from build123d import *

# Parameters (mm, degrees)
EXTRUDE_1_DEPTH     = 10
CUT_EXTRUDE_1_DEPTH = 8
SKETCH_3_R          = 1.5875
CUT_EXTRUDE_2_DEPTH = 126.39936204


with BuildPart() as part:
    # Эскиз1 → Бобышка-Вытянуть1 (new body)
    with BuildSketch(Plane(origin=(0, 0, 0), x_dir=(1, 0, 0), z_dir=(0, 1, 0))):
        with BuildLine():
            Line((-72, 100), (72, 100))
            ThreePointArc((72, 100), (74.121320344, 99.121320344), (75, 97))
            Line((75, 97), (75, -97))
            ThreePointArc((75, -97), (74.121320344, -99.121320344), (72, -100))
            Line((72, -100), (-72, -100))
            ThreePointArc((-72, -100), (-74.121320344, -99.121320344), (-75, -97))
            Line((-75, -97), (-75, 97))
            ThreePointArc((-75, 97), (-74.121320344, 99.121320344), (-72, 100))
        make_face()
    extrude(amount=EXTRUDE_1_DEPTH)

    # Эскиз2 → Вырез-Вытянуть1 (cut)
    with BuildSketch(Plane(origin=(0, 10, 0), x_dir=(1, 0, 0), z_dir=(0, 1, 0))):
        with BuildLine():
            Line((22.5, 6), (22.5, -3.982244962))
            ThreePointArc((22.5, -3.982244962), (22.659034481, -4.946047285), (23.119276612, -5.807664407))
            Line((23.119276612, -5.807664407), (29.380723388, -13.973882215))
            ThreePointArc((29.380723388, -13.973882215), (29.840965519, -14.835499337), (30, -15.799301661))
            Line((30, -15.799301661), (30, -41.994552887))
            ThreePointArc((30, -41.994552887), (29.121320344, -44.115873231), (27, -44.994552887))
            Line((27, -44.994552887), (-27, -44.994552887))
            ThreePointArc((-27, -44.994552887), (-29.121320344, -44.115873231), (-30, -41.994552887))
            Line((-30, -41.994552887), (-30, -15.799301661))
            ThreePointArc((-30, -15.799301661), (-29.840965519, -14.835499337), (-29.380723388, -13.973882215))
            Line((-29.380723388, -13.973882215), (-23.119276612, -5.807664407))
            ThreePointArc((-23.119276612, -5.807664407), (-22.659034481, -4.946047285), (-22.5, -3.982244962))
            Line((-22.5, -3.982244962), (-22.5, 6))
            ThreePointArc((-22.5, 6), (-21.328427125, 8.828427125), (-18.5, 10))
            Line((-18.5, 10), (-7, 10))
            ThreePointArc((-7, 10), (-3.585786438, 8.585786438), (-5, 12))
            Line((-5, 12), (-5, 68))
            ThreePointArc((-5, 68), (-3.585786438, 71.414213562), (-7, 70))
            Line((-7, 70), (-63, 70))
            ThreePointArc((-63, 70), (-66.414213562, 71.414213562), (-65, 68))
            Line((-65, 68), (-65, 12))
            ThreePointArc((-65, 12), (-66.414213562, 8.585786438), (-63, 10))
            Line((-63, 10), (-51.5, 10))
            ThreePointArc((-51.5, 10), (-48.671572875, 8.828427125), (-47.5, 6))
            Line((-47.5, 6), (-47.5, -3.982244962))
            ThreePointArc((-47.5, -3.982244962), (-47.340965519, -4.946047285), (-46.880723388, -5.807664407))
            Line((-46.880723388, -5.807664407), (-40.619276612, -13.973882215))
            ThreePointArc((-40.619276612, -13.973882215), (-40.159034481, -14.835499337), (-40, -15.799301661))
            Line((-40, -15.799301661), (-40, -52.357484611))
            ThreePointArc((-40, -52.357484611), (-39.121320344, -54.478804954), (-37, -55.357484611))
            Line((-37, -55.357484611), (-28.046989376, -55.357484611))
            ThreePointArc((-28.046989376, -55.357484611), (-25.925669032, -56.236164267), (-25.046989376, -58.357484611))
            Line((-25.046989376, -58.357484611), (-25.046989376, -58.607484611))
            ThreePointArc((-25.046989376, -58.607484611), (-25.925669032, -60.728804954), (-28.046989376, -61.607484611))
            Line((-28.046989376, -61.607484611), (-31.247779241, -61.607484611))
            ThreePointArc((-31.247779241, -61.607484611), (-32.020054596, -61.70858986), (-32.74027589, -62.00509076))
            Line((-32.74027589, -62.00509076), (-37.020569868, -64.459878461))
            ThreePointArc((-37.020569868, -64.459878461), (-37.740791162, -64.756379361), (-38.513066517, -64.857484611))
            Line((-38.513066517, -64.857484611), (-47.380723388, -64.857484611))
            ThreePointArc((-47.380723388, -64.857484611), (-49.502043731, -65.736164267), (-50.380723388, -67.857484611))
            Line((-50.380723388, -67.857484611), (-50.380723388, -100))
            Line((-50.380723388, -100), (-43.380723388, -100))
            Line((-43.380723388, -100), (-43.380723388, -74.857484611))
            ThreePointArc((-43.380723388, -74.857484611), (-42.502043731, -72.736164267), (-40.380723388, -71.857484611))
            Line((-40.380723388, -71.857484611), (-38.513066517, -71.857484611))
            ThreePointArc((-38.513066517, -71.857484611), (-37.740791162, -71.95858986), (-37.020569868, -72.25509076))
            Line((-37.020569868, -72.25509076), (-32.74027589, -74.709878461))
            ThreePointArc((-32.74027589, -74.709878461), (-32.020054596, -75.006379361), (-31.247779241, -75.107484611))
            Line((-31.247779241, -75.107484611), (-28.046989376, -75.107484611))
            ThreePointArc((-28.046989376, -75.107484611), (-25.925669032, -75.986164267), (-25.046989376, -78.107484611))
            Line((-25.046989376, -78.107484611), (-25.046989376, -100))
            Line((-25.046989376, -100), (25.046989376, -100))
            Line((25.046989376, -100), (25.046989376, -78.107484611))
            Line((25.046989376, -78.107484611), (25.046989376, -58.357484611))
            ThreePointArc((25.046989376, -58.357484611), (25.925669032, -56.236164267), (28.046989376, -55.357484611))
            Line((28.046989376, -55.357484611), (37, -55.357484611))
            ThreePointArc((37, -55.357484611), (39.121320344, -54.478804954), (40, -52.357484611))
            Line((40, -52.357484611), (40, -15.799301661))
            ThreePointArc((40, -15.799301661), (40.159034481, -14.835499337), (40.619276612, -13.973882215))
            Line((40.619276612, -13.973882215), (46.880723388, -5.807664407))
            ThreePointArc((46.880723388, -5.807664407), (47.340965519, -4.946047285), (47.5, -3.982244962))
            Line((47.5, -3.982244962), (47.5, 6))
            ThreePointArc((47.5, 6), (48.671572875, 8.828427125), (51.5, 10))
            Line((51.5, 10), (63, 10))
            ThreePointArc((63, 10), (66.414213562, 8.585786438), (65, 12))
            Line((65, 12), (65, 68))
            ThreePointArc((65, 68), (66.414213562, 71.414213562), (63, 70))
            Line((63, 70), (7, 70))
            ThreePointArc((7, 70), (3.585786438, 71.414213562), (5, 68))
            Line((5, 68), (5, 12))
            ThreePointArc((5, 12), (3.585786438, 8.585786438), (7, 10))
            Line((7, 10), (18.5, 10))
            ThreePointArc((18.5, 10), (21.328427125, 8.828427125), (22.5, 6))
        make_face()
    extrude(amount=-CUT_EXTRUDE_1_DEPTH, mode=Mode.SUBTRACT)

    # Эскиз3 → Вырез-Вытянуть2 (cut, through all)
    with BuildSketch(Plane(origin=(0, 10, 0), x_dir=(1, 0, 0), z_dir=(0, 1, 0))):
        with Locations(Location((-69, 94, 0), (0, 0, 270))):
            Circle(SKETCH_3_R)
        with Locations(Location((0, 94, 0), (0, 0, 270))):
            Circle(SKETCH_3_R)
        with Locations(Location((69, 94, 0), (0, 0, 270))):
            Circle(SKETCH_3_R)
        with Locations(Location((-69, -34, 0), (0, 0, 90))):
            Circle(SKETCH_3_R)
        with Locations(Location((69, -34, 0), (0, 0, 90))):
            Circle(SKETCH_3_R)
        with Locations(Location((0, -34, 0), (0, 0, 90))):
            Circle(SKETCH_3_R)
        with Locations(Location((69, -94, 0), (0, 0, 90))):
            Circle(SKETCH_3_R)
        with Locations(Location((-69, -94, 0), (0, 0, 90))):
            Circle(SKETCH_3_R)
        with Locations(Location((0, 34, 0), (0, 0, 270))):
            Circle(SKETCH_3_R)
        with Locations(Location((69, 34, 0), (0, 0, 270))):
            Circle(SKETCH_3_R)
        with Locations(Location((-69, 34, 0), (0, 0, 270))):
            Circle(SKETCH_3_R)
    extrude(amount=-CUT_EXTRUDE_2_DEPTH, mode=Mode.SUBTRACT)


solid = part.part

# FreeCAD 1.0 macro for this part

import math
import FreeCAD as App
import Part
import Sketcher
from FreeCAD import Vector
Q = App.Units.Quantity

doc = App.newDocument("Part")
body = doc.addObject("PartDesign::Body", "Body")

# Sketch on XZ plane
sketch1 = body.newObject("Sketcher::SketchObject", "Sketch")
sketch1.AttachmentSupport = (doc.getObject("XZ_Plane"), [""])
sketch1.MapMode = "FlatFace"
sketch1.addGeometry(Part.LineSegment(Vector(72, -100, 0), Vector(-72, -100, 0)), False)
sketch1.addGeometry(Part.ArcOfCircle(Part.Circle(Vector(-72, -97, 0), Vector(0, 0, 1), 3), math.radians(180), math.radians(270)), False)
sketch1.addGeometry(Part.LineSegment(Vector(-75, -97, 0), Vector(-75, 97, 0)), False)
sketch1.addGeometry(Part.ArcOfCircle(Part.Circle(Vector(-72, 97, 0), Vector(0, 0, 1), 3), math.radians(90), math.radians(180)), False)
sketch1.addGeometry(Part.LineSegment(Vector(-72, 100, 0), Vector(72, 100, 0)), False)
sketch1.addGeometry(Part.ArcOfCircle(Part.Circle(Vector(72, 97, 0), Vector(0, 0, 1), 3), math.radians(0), math.radians(90)), False)
sketch1.addGeometry(Part.LineSegment(Vector(75, 97, 0), Vector(75, -97, 0)), False)
sketch1.addGeometry(Part.ArcOfCircle(Part.Circle(Vector(72, -97, 0), Vector(0, 0, 1), 3), math.radians(-90), math.radians(0)), False)
sketch1.addConstraint(Sketcher.Constraint("Tangent", 0, 2, 1, 2))
sketch1.addConstraint(Sketcher.Constraint("Tangent", 1, 1, 2, 1))
sketch1.addConstraint(Sketcher.Constraint("Tangent", 2, 2, 3, 2))
sketch1.addConstraint(Sketcher.Constraint("Tangent", 3, 1, 4, 1))
sketch1.addConstraint(Sketcher.Constraint("Tangent", 4, 2, 5, 2))
sketch1.addConstraint(Sketcher.Constraint("Tangent", 5, 1, 6, 1))
sketch1.addConstraint(Sketcher.Constraint("Tangent", 6, 2, 7, 2))
sketch1.addConstraint(Sketcher.Constraint("Tangent", 7, 1, 0, 1))
sketch1.addConstraint(Sketcher.Constraint("Horizontal", 0))
sketch1.addConstraint(Sketcher.Constraint("Vertical", 2))
sketch1.addConstraint(Sketcher.Constraint("Horizontal", 4))
sketch1.addConstraint(Sketcher.Constraint("Vertical", 6))
sketch1.addConstraint(Sketcher.Constraint("Equal", 1, 3))
sketch1.addConstraint(Sketcher.Constraint("Equal", 3, 5))
sketch1.addConstraint(Sketcher.Constraint("Equal", 5, 7))
sketch1.addConstraint(Sketcher.Constraint("Symmetric", 1, 3, 5, 3, -1, 1))
sketch1.addConstraint(Sketcher.Constraint("Radius", 1, Q("3 mm")))
sketch1.addConstraint(Sketcher.Constraint("DistanceX", 0, 2, 0, 1, Q("144 mm")))
sketch1.addConstraint(Sketcher.Constraint("DistanceY", 2, 1, 2, 2, Q("194 mm")))
pad1 = body.newObject("PartDesign::Pad", "Pad")
pad1.Profile = sketch1
pad1.Length = 10
pad1.Reversed = True

# Sketch on XZ plane
sketch2 = body.newObject("Sketcher::SketchObject", "Sketch001")
sketch2.AttachmentSupport = (doc.getObject("XZ_Plane"), [""])
sketch2.MapMode = "FlatFace"
sketch2.AttachmentOffset = App.Placement(Vector(0, 0, -10), App.Rotation())
sketch2.addGeometry(Part.LineSegment(Vector(22.5, -6, 0), Vector(22.5, 3.98, 0)), False)
sketch2.addGeometry(Part.ArcOfCircle(Part.Circle(Vector(25.5, 3.98, 0), Vector(0, 0, 1), 3), math.radians(143), math.radians(180)), False)
sketch2.addGeometry(Part.LineSegment(Vector(23.12, 5.81, 0), Vector(29.38, 13.97, 0)), False)
sketch2.addGeometry(Part.ArcOfCircle(Part.Circle(Vector(27, 15.8, 0), Vector(0, 0, 1), 3), math.radians(-37), math.radians(0)), False)
sketch2.addGeometry(Part.LineSegment(Vector(30, 15.8, 0), Vector(30, 41.99, 0)), False)
sketch2.addGeometry(Part.ArcOfCircle(Part.Circle(Vector(27, 41.99, 0), Vector(0, 0, 1), 3), math.radians(0), math.radians(90)), False)
sketch2.addGeometry(Part.LineSegment(Vector(27, 44.99, 0), Vector(-27, 44.99, 0)), False)
sketch2.addGeometry(Part.ArcOfCircle(Part.Circle(Vector(-27, 41.99, 0), Vector(0, 0, 1), 3), math.radians(90), math.radians(180)), False)
sketch2.addGeometry(Part.LineSegment(Vector(-30, 41.99, 0), Vector(-30, 15.8, 0)), False)
sketch2.addGeometry(Part.ArcOfCircle(Part.Circle(Vector(-27, 15.8, 0), Vector(0, 0, 1), 3), math.radians(-180), math.radians(-143)), False)
sketch2.addGeometry(Part.LineSegment(Vector(-29.38, 13.97, 0), Vector(-23.12, 5.81, 0)), False)
sketch2.addGeometry(Part.ArcOfCircle(Part.Circle(Vector(-25.5, 3.98, 0), Vector(0, 0, 1), 3), math.radians(0), math.radians(37)), False)
sketch2.addGeometry(Part.LineSegment(Vector(-22.5, 3.98, 0), Vector(-22.5, -6, 0)), False)
sketch2.addGeometry(Part.ArcOfCircle(Part.Circle(Vector(-18.5, -6, 0), Vector(0, 0, 1), 4), math.radians(180), math.radians(270)), False)
sketch2.addGeometry(Part.LineSegment(Vector(-18.5, -10, 0), Vector(-7, -10, 0)), False)
sketch2.addGeometry(Part.ArcOfCircle(Part.Circle(Vector(-5, -10, 0), Vector(0, 0, 1), 2), math.radians(-90), math.radians(180)), False)
sketch2.addGeometry(Part.LineSegment(Vector(-5, -12, 0), Vector(-5, -68, 0)), False)
sketch2.addGeometry(Part.ArcOfCircle(Part.Circle(Vector(-5, -70, 0), Vector(0, 0, 1), 2), math.radians(180), math.radians(450)), False)
sketch2.addGeometry(Part.LineSegment(Vector(-7, -70, 0), Vector(-63, -70, 0)), False)
sketch2.addGeometry(Part.ArcOfCircle(Part.Circle(Vector(-65, -70, 0), Vector(0, 0, 1), 2), math.radians(90), math.radians(360)), False)
sketch2.addGeometry(Part.LineSegment(Vector(-65, -68, 0), Vector(-65, -12, 0)), False)
sketch2.addGeometry(Part.ArcOfCircle(Part.Circle(Vector(-65, -10, 0), Vector(0, 0, 1), 2), math.radians(0), math.radians(270)), False)
sketch2.addGeometry(Part.LineSegment(Vector(-63, -10, 0), Vector(-51.5, -10, 0)), False)
sketch2.addGeometry(Part.ArcOfCircle(Part.Circle(Vector(-51.5, -6, 0), Vector(0, 0, 1), 4), math.radians(-90), math.radians(0)), False)
sketch2.addGeometry(Part.LineSegment(Vector(-47.5, -6, 0), Vector(-47.5, 3.98, 0)), False)
sketch2.addGeometry(Part.ArcOfCircle(Part.Circle(Vector(-44.5, 3.98, 0), Vector(0, 0, 1), 3), math.radians(143), math.radians(180)), False)
sketch2.addGeometry(Part.LineSegment(Vector(-46.88, 5.81, 0), Vector(-40.62, 13.97, 0)), False)
sketch2.addGeometry(Part.ArcOfCircle(Part.Circle(Vector(-43, 15.8, 0), Vector(0, 0, 1), 3), math.radians(-37), math.radians(0)), False)
sketch2.addGeometry(Part.LineSegment(Vector(-40, 15.8, 0), Vector(-40, 52.36, 0)), False)
sketch2.addGeometry(Part.ArcOfCircle(Part.Circle(Vector(-37, 52.36, 0), Vector(0, 0, 1), 3), math.radians(90), math.radians(180)), False)
sketch2.addGeometry(Part.LineSegment(Vector(-37, 55.36, 0), Vector(-28.05, 55.36, 0)), False)
sketch2.addGeometry(Part.ArcOfCircle(Part.Circle(Vector(-28.05, 58.36, 0), Vector(0, 0, 1), 3), math.radians(-90), math.radians(0)), False)
sketch2.addGeometry(Part.LineSegment(Vector(-25.05, 58.36, 0), Vector(-25.05, 58.61, 0)), False)
sketch2.addGeometry(Part.ArcOfCircle(Part.Circle(Vector(-28.05, 58.61, 0), Vector(0, 0, 1), 3), math.radians(0), math.radians(90)), False)
sketch2.addGeometry(Part.LineSegment(Vector(-28.05, 61.61, 0), Vector(-31.25, 61.61, 0)), False)
sketch2.addGeometry(Part.ArcOfCircle(Part.Circle(Vector(-31.25, 64.61, 0), Vector(0, 0, 1), 3), math.radians(-120), math.radians(-90)), False)
sketch2.addGeometry(Part.LineSegment(Vector(-32.74, 62.01, 0), Vector(-37.02, 64.46, 0)), False)
sketch2.addGeometry(Part.ArcOfCircle(Part.Circle(Vector(-38.51, 61.86, 0), Vector(0, 0, 1), 3), math.radians(60), math.radians(90)), False)
sketch2.addGeometry(Part.LineSegment(Vector(-38.51, 64.86, 0), Vector(-47.38, 64.86, 0)), False)
sketch2.addGeometry(Part.ArcOfCircle(Part.Circle(Vector(-47.38, 67.86, 0), Vector(0, 0, 1), 3), math.radians(180), math.radians(270)), False)
sketch2.addGeometry(Part.LineSegment(Vector(-50.38, 67.86, 0), Vector(-50.38, 100, 0)), False)
sketch2.addGeometry(Part.LineSegment(Vector(-50.38, 100, 0), Vector(-43.38, 100, 0)), False)
sketch2.addGeometry(Part.LineSegment(Vector(-43.38, 100, 0), Vector(-43.38, 74.86, 0)), False)
sketch2.addGeometry(Part.ArcOfCircle(Part.Circle(Vector(-40.38, 74.86, 0), Vector(0, 0, 1), 3), math.radians(180), math.radians(270)), False)
sketch2.addGeometry(Part.LineSegment(Vector(-40.38, 71.86, 0), Vector(-38.51, 71.86, 0)), False)
sketch2.addGeometry(Part.ArcOfCircle(Part.Circle(Vector(-38.51, 74.86, 0), Vector(0, 0, 1), 3), math.radians(-90), math.radians(-60)), False)
sketch2.addGeometry(Part.LineSegment(Vector(-37.02, 72.26, 0), Vector(-32.74, 74.71, 0)), False)
sketch2.addGeometry(Part.ArcOfCircle(Part.Circle(Vector(-31.25, 72.11, 0), Vector(0, 0, 1), 3), math.radians(90), math.radians(120)), False)
sketch2.addGeometry(Part.LineSegment(Vector(-31.25, 75.11, 0), Vector(-28.05, 75.11, 0)), False)
sketch2.addGeometry(Part.ArcOfCircle(Part.Circle(Vector(-28.05, 78.11, 0), Vector(0, 0, 1), 3), math.radians(-90), math.radians(0)), False)
sketch2.addGeometry(Part.LineSegment(Vector(-25.05, 78.11, 0), Vector(-25.05, 100, 0)), False)
sketch2.addGeometry(Part.LineSegment(Vector(-25.05, 100, 0), Vector(25.05, 100, 0)), False)
sketch2.addGeometry(Part.LineSegment(Vector(25.05, 100, 0), Vector(25.05, 58.36, 0)), False)
sketch2.addGeometry(Part.ArcOfCircle(Part.Circle(Vector(28.05, 58.36, 0), Vector(0, 0, 1), 3), math.radians(180), math.radians(270)), False)
sketch2.addGeometry(Part.LineSegment(Vector(28.05, 55.36, 0), Vector(37, 55.36, 0)), False)
sketch2.addGeometry(Part.ArcOfCircle(Part.Circle(Vector(37, 52.36, 0), Vector(0, 0, 1), 3), math.radians(0), math.radians(90)), False)
sketch2.addGeometry(Part.LineSegment(Vector(40, 52.36, 0), Vector(40, 15.8, 0)), False)
sketch2.addGeometry(Part.ArcOfCircle(Part.Circle(Vector(43, 15.8, 0), Vector(0, 0, 1), 3), math.radians(-180), math.radians(-143)), False)
sketch2.addGeometry(Part.LineSegment(Vector(40.62, 13.97, 0), Vector(46.88, 5.81, 0)), False)
sketch2.addGeometry(Part.ArcOfCircle(Part.Circle(Vector(44.5, 3.98, 0), Vector(0, 0, 1), 3), math.radians(0), math.radians(37)), False)
sketch2.addGeometry(Part.LineSegment(Vector(47.5, 3.98, 0), Vector(47.5, -6, 0)), False)
sketch2.addGeometry(Part.ArcOfCircle(Part.Circle(Vector(51.5, -6, 0), Vector(0, 0, 1), 4), math.radians(180), math.radians(270)), False)
sketch2.addGeometry(Part.LineSegment(Vector(51.5, -10, 0), Vector(63, -10, 0)), False)
sketch2.addGeometry(Part.ArcOfCircle(Part.Circle(Vector(65, -10, 0), Vector(0, 0, 1), 2), math.radians(-90), math.radians(180)), False)
sketch2.addGeometry(Part.LineSegment(Vector(65, -12, 0), Vector(65, -68, 0)), False)
sketch2.addGeometry(Part.ArcOfCircle(Part.Circle(Vector(65, -70, 0), Vector(0, 0, 1), 2), math.radians(180), math.radians(450)), False)
sketch2.addGeometry(Part.LineSegment(Vector(63, -70, 0), Vector(7, -70, 0)), False)
sketch2.addGeometry(Part.ArcOfCircle(Part.Circle(Vector(5, -70, 0), Vector(0, 0, 1), 2), math.radians(90), math.radians(360)), False)
sketch2.addGeometry(Part.LineSegment(Vector(5, -68, 0), Vector(5, -12, 0)), False)
sketch2.addGeometry(Part.ArcOfCircle(Part.Circle(Vector(5, -10, 0), Vector(0, 0, 1), 2), math.radians(0), math.radians(270)), False)
sketch2.addGeometry(Part.LineSegment(Vector(7, -10, 0), Vector(18.5, -10, 0)), False)
sketch2.addGeometry(Part.ArcOfCircle(Part.Circle(Vector(18.5, -6, 0), Vector(0, 0, 1), 4), math.radians(-90), math.radians(0)), False)
sketch2.addConstraint(Sketcher.Constraint("Tangent", 0, 2, 1, 2))
sketch2.addConstraint(Sketcher.Constraint("Tangent", 1, 1, 2, 1))
sketch2.addConstraint(Sketcher.Constraint("Tangent", 2, 2, 3, 1))
sketch2.addConstraint(Sketcher.Constraint("Tangent", 3, 2, 4, 1))
sketch2.addConstraint(Sketcher.Constraint("Tangent", 4, 2, 5, 1))
sketch2.addConstraint(Sketcher.Constraint("Tangent", 5, 2, 6, 1))
sketch2.addConstraint(Sketcher.Constraint("Tangent", 6, 2, 7, 1))
sketch2.addConstraint(Sketcher.Constraint("Tangent", 7, 2, 8, 1))
sketch2.addConstraint(Sketcher.Constraint("Tangent", 8, 2, 9, 1))
sketch2.addConstraint(Sketcher.Constraint("Tangent", 9, 2, 10, 1))
sketch2.addConstraint(Sketcher.Constraint("Tangent", 10, 2, 11, 2))
sketch2.addConstraint(Sketcher.Constraint("Tangent", 11, 1, 12, 1))
sketch2.addConstraint(Sketcher.Constraint("Tangent", 12, 2, 13, 1))
sketch2.addConstraint(Sketcher.Constraint("Tangent", 13, 2, 14, 1))
sketch2.addConstraint(Sketcher.Constraint("Coincident", 14, 2, 15, 2))
sketch2.addConstraint(Sketcher.Constraint("Coincident", 15, 1, 16, 1))
sketch2.addConstraint(Sketcher.Constraint("Coincident", 16, 2, 17, 2))
sketch2.addConstraint(Sketcher.Constraint("Coincident", 17, 1, 18, 1))
sketch2.addConstraint(Sketcher.Constraint("Coincident", 18, 2, 19, 2))
sketch2.addConstraint(Sketcher.Constraint("Coincident", 19, 1, 20, 1))
sketch2.addConstraint(Sketcher.Constraint("Coincident", 20, 2, 21, 2))
sketch2.addConstraint(Sketcher.Constraint("Coincident", 21, 1, 22, 1))
sketch2.addConstraint(Sketcher.Constraint("Tangent", 22, 2, 23, 1))
sketch2.addConstraint(Sketcher.Constraint("Tangent", 23, 2, 24, 1))
sketch2.addConstraint(Sketcher.Constraint("Tangent", 24, 2, 25, 2))
sketch2.addConstraint(Sketcher.Constraint("Tangent", 25, 1, 26, 1))
sketch2.addConstraint(Sketcher.Constraint("Tangent", 26, 2, 27, 1))
sketch2.addConstraint(Sketcher.Constraint("Tangent", 27, 2, 28, 1))
sketch2.addConstraint(Sketcher.Constraint("Tangent", 28, 2, 29, 2))
sketch2.addConstraint(Sketcher.Constraint("Tangent", 29, 1, 30, 1))
sketch2.addConstraint(Sketcher.Constraint("Tangent", 30, 2, 31, 1))
sketch2.addConstraint(Sketcher.Constraint("Tangent", 31, 2, 32, 1))
sketch2.addConstraint(Sketcher.Constraint("Tangent", 32, 2, 33, 1))
sketch2.addConstraint(Sketcher.Constraint("Tangent", 33, 2, 34, 1))
sketch2.addConstraint(Sketcher.Constraint("Tangent", 34, 2, 35, 2))
sketch2.addConstraint(Sketcher.Constraint("Tangent", 35, 1, 36, 1))
sketch2.addConstraint(Sketcher.Constraint("Tangent", 36, 2, 37, 1))
sketch2.addConstraint(Sketcher.Constraint("Tangent", 37, 2, 38, 1))
sketch2.addConstraint(Sketcher.Constraint("Tangent", 38, 2, 39, 2))
sketch2.addConstraint(Sketcher.Constraint("Tangent", 39, 1, 40, 1))
sketch2.addConstraint(Sketcher.Constraint("Coincident", 40, 2, 41, 1))
sketch2.addConstraint(Sketcher.Constraint("Coincident", 41, 2, 42, 1))
sketch2.addConstraint(Sketcher.Constraint("Tangent", 42, 2, 43, 1))
sketch2.addConstraint(Sketcher.Constraint("Tangent", 43, 2, 44, 1))
sketch2.addConstraint(Sketcher.Constraint("Tangent", 44, 2, 45, 1))
sketch2.addConstraint(Sketcher.Constraint("Tangent", 45, 2, 46, 1))
sketch2.addConstraint(Sketcher.Constraint("Tangent", 46, 2, 47, 2))
sketch2.addConstraint(Sketcher.Constraint("Tangent", 47, 1, 48, 1))
sketch2.addConstraint(Sketcher.Constraint("Tangent", 48, 2, 49, 1))
sketch2.addConstraint(Sketcher.Constraint("Tangent", 49, 2, 50, 1))
sketch2.addConstraint(Sketcher.Constraint("Coincident", 50, 2, 51, 1))
sketch2.addConstraint(Sketcher.Constraint("Coincident", 51, 2, 52, 1))
sketch2.addConstraint(Sketcher.Constraint("Tangent", 52, 2, 53, 1))
sketch2.addConstraint(Sketcher.Constraint("Tangent", 53, 2, 54, 1))
sketch2.addConstraint(Sketcher.Constraint("Tangent", 54, 2, 55, 2))
sketch2.addConstraint(Sketcher.Constraint("Tangent", 55, 1, 56, 1))
sketch2.addConstraint(Sketcher.Constraint("Tangent", 56, 2, 57, 1))
sketch2.addConstraint(Sketcher.Constraint("Tangent", 57, 2, 58, 1))
sketch2.addConstraint(Sketcher.Constraint("Tangent", 58, 2, 59, 2))
sketch2.addConstraint(Sketcher.Constraint("Tangent", 59, 1, 60, 1))
sketch2.addConstraint(Sketcher.Constraint("Tangent", 60, 2, 61, 1))
sketch2.addConstraint(Sketcher.Constraint("Tangent", 61, 2, 62, 1))
sketch2.addConstraint(Sketcher.Constraint("Coincident", 62, 2, 63, 2))
sketch2.addConstraint(Sketcher.Constraint("Coincident", 63, 1, 64, 1))
sketch2.addConstraint(Sketcher.Constraint("Coincident", 64, 2, 65, 2))
sketch2.addConstraint(Sketcher.Constraint("Coincident", 65, 1, 66, 1))
sketch2.addConstraint(Sketcher.Constraint("Coincident", 66, 2, 67, 2))
sketch2.addConstraint(Sketcher.Constraint("Coincident", 67, 1, 68, 1))
sketch2.addConstraint(Sketcher.Constraint("Coincident", 68, 2, 69, 2))
sketch2.addConstraint(Sketcher.Constraint("Coincident", 69, 1, 70, 1))
sketch2.addConstraint(Sketcher.Constraint("Tangent", 70, 2, 71, 1))
sketch2.addConstraint(Sketcher.Constraint("Tangent", 71, 2, 0, 1))
sketch2.addConstraint(Sketcher.Constraint("Vertical", 0))
sketch2.addConstraint(Sketcher.Constraint("Vertical", 4))
sketch2.addConstraint(Sketcher.Constraint("Horizontal", 6))
sketch2.addConstraint(Sketcher.Constraint("Vertical", 8))
sketch2.addConstraint(Sketcher.Constraint("Vertical", 12))
sketch2.addConstraint(Sketcher.Constraint("Horizontal", 14))
sketch2.addConstraint(Sketcher.Constraint("Vertical", 16))
sketch2.addConstraint(Sketcher.Constraint("Horizontal", 18))
sketch2.addConstraint(Sketcher.Constraint("Vertical", 20))
sketch2.addConstraint(Sketcher.Constraint("Horizontal", 22))
sketch2.addConstraint(Sketcher.Constraint("Vertical", 24))
sketch2.addConstraint(Sketcher.Constraint("Vertical", 28))
sketch2.addConstraint(Sketcher.Constraint("Horizontal", 30))
sketch2.addConstraint(Sketcher.Constraint("Vertical", 32))
sketch2.addConstraint(Sketcher.Constraint("Horizontal", 34))
sketch2.addConstraint(Sketcher.Constraint("Horizontal", 38))
sketch2.addConstraint(Sketcher.Constraint("Vertical", 40))
sketch2.addConstraint(Sketcher.Constraint("Horizontal", 41))
sketch2.addConstraint(Sketcher.Constraint("Vertical", 42))
sketch2.addConstraint(Sketcher.Constraint("Horizontal", 44))
sketch2.addConstraint(Sketcher.Constraint("Horizontal", 48))
sketch2.addConstraint(Sketcher.Constraint("Vertical", 50))
sketch2.addConstraint(Sketcher.Constraint("Horizontal", 51))
sketch2.addConstraint(Sketcher.Constraint("Vertical", 52))
sketch2.addConstraint(Sketcher.Constraint("Horizontal", 54))
sketch2.addConstraint(Sketcher.Constraint("Vertical", 56))
sketch2.addConstraint(Sketcher.Constraint("Vertical", 60))
sketch2.addConstraint(Sketcher.Constraint("Horizontal", 62))
sketch2.addConstraint(Sketcher.Constraint("Vertical", 64))
sketch2.addConstraint(Sketcher.Constraint("Horizontal", 66))
sketch2.addConstraint(Sketcher.Constraint("Vertical", 68))
sketch2.addConstraint(Sketcher.Constraint("Horizontal", 70))
sketch2.addConstraint(Sketcher.Constraint("Equal", 1, 3))
sketch2.addConstraint(Sketcher.Constraint("Equal", 3, 5))
sketch2.addConstraint(Sketcher.Constraint("Equal", 5, 7))
sketch2.addConstraint(Sketcher.Constraint("Equal", 7, 9))
sketch2.addConstraint(Sketcher.Constraint("Equal", 9, 11))
sketch2.addConstraint(Sketcher.Constraint("Equal", 15, 17))
sketch2.addConstraint(Sketcher.Constraint("Equal", 17, 19))
sketch2.addConstraint(Sketcher.Constraint("Equal", 19, 21))
sketch2.addConstraint(Sketcher.Constraint("Equal", 13, 23))
sketch2.addConstraint(Sketcher.Constraint("Equal", 11, 25))
sketch2.addConstraint(Sketcher.Constraint("Equal", 25, 27))
sketch2.addConstraint(Sketcher.Constraint("Equal", 27, 29))
sketch2.addConstraint(Sketcher.Constraint("Equal", 29, 31))
sketch2.addConstraint(Sketcher.Constraint("Equal", 31, 33))
sketch2.addConstraint(Sketcher.Constraint("Equal", 33, 35))
sketch2.addConstraint(Sketcher.Constraint("Equal", 35, 37))
sketch2.addConstraint(Sketcher.Constraint("Equal", 37, 39))
sketch2.addConstraint(Sketcher.Constraint("Equal", 39, 43))
sketch2.addConstraint(Sketcher.Constraint("Equal", 43, 45))
sketch2.addConstraint(Sketcher.Constraint("Equal", 45, 47))
sketch2.addConstraint(Sketcher.Constraint("Equal", 47, 49))
sketch2.addConstraint(Sketcher.Constraint("Equal", 49, 53))
sketch2.addConstraint(Sketcher.Constraint("Equal", 53, 55))
sketch2.addConstraint(Sketcher.Constraint("Equal", 55, 57))
sketch2.addConstraint(Sketcher.Constraint("Equal", 57, 59))
sketch2.addConstraint(Sketcher.Constraint("Equal", 23, 61))
sketch2.addConstraint(Sketcher.Constraint("Equal", 21, 63))
sketch2.addConstraint(Sketcher.Constraint("Equal", 63, 65))
sketch2.addConstraint(Sketcher.Constraint("Equal", 65, 67))
sketch2.addConstraint(Sketcher.Constraint("Equal", 67, 69))
sketch2.addConstraint(Sketcher.Constraint("Equal", 61, 71))
sketch2.addConstraint(Sketcher.Constraint("Symmetric", 3, 3, 9, 3, -2))
sketch2.addConstraint(Sketcher.Constraint("Symmetric", 1, 3, 11, 3, -2))
sketch2.addConstraint(Sketcher.Constraint("Symmetric", 31, 3, 53, 3, -2))
sketch2.addConstraint(Sketcher.Constraint("Symmetric", 27, 3, 57, 3, -2))
sketch2.addConstraint(Sketcher.Constraint("Symmetric", 25, 3, 59, 3, -2))
sketch2.addConstraint(Sketcher.Constraint("Symmetric", 21, 3, 63, 3, -2))
sketch2.addConstraint(Sketcher.Constraint("Symmetric", 19, 3, 65, 3, -2))
sketch2.addConstraint(Sketcher.Constraint("Symmetric", 17, 3, 67, 3, -2))
sketch2.addConstraint(Sketcher.Constraint("Symmetric", 15, 3, 69, 3, -2))
sketch2.addConstraint(Sketcher.Constraint("Parallel", 2, 26))
sketch2.addConstraint(Sketcher.Constraint("Horizontal", 17, 3, 19, 3))
sketch2.addConstraint(Sketcher.Constraint("Horizontal", 15, 3, 21, 3))
sketch2.addConstraint(Sketcher.Constraint("Horizontal", 13, 3, 23, 3))
sketch2.addConstraint(Sketcher.Constraint("Horizontal", 11, 3, 25, 3))
sketch2.addConstraint(Sketcher.Constraint("Horizontal", 9, 3, 27, 3))
sketch2.addConstraint(Sketcher.Constraint("Horizontal", 23, 3, 61, 3))
sketch2.addConstraint(Sketcher.Constraint("Horizontal", 61, 3, 71, 3))
sketch2.addConstraint(Sketcher.Constraint("Horizontal", 69, 3, 13, 2))
sketch2.addConstraint(Sketcher.Constraint("Horizontal", 67, 3, 17, 1))
sketch2.addConstraint(Sketcher.Constraint("Horizontal", 41, 2, 50, 2))
sketch2.addConstraint(Sketcher.Constraint("Horizontal", 18, 2, 65, 1))
sketch2.addConstraint(Sketcher.Constraint("Vertical", 15, 3, 17, 3))
sketch2.addConstraint(Sketcher.Constraint("Vertical", 19, 3, 21, 3))
sketch2.addConstraint(Sketcher.Constraint("Vertical", 37, 3, 45, 3))
sketch2.addConstraint(Sketcher.Constraint("Vertical", 35, 3, 47, 3))
sketch2.addConstraint(Sketcher.Constraint("Vertical", 33, 3, 49, 3))
sketch2.addConstraint(Sketcher.Constraint("Vertical", 17, 3, 15, 1))
sketch2.addConstraint(Sketcher.Constraint("Vertical", 21, 3, 19, 1))
sketch2.addConstraint(Sketcher.Constraint("Vertical", 36, 2, 45, 2))
sketch2.addConstraint(Sketcher.Constraint("Vertical", 65, 3, 63, 1))
sketch2.addConstraint(Sketcher.Constraint("Vertical", 69, 3, 67, 1))
sketch2.addConstraint(Sketcher.Constraint("Equal", 14, 22))
sketch2.addConstraint(Sketcher.Constraint("Equal", 66, 16))
sketch2.addConstraint(Sketcher.Constraint("Radius", 1, Q("3 mm")))
sketch2.addConstraint(Sketcher.Constraint("Radius", 13, Q("4 mm")))
sketch2.addConstraint(Sketcher.Constraint("Radius", 15, Q("2 mm")))
sketch2.addConstraint(Sketcher.Constraint("DistanceX", 6, 2, 6, 1, Q("54 mm")))
sketch2.addConstraint(Sketcher.Constraint("DistanceX", 18, 2, 18, 1, Q("56 mm")))
sketch2.addConstraint(Sketcher.Constraint("DistanceX", 41, 1, 41, 2, Q("7 mm")))
sketch2.addConstraint(Sketcher.Constraint("DistanceX", 14, 1, 14, 2, Q("11.5 mm")))
sketch2.addConstraint(Sketcher.Constraint("DistanceY", 13, 3, -1, 1, Q("6 mm")))
sketch2.addConstraint(Sketcher.Constraint("DistanceX", 15, 3, -1, 1, Q("5 mm")))
sketch2.addConstraint(Sketcher.Constraint("DistanceY", -1, 1, 40, 2, Q("100 mm")))
sketch2.addConstraint(Sketcher.Constraint("DistanceY", 32, 1, 32, 2, Q("0.25 mm")))
sketch2.addConstraint(Sketcher.Constraint("DistanceX", 30, 1, 30, 2, Q("8.953011 mm")))
sketch2.addConstraint(Sketcher.Constraint("DistanceX", 34, 2, 34, 1, Q("3.20079 mm")))
sketch2.addConstraint(Sketcher.Constraint("DistanceY", 4, 1, 4, 2, Q("26.195251 mm")))
sketch2.addConstraint(Sketcher.Constraint("DistanceY", -1, 1, 3, 3, Q("15.799302 mm")))
sketch2.addConstraint(Sketcher.Constraint("DistanceX", 38, 2, 38, 1, Q("8.867657 mm")))
sketch2.addConstraint(Sketcher.Constraint("DistanceY", 0, 1, 0, 2, Q("9.982245 mm")))
sketch2.addConstraint(Sketcher.Constraint("DistanceY", 28, 1, 28, 2, Q("36.558183 mm")))
sketch2.addConstraint(Sketcher.Constraint("DistanceY", 40, 1, 40, 2, Q("32.142515 mm")))
sketch2.addConstraint(Sketcher.Constraint("DistanceY", 42, 2, 42, 1, Q("25.142515 mm")))
sketch2.addConstraint(Sketcher.Constraint("DistanceY", -1, 1, 35, 1, Q("62.005091 mm")))
pocket1 = body.newObject("PartDesign::Pocket", "Pocket")
pocket1.Profile = sketch2
pocket1.Length = 8
pocket1.Reversed = True

# Sketch on XZ plane
sketch3 = body.newObject("Sketcher::SketchObject", "Sketch002")
sketch3.AttachmentSupport = (doc.getObject("XZ_Plane"), [""])
sketch3.MapMode = "FlatFace"
sketch3.AttachmentOffset = App.Placement(Vector(0, 0, -10), App.Rotation())
sketch3.addGeometry(Part.Circle(Vector(-69, -94, 0), Vector(0, 0, 1), 1.6), False)
sketch3.addGeometry(Part.Circle(Vector(0, -94, 0), Vector(0, 0, 1), 1.6), False)
sketch3.addGeometry(Part.Circle(Vector(69, -94, 0), Vector(0, 0, 1), 1.6), False)
sketch3.addGeometry(Part.Circle(Vector(-69, 34, 0), Vector(0, 0, 1), 1.6), False)
sketch3.addGeometry(Part.Circle(Vector(69, 34, 0), Vector(0, 0, 1), 1.6), False)
sketch3.addGeometry(Part.Circle(Vector(0, 34, 0), Vector(0, 0, 1), 1.6), False)
sketch3.addGeometry(Part.Circle(Vector(69, 94, 0), Vector(0, 0, 1), 1.6), False)
sketch3.addGeometry(Part.Circle(Vector(-69, 94, 0), Vector(0, 0, 1), 1.6), False)
sketch3.addGeometry(Part.Circle(Vector(0, -34, 0), Vector(0, 0, 1), 1.6), False)
sketch3.addGeometry(Part.Circle(Vector(69, -34, 0), Vector(0, 0, 1), 1.6), False)
sketch3.addGeometry(Part.Circle(Vector(-69, -34, 0), Vector(0, 0, 1), 1.6), False)
sketch3.addConstraint(Sketcher.Constraint("Equal", 0, 1))
sketch3.addConstraint(Sketcher.Constraint("Equal", 1, 2))
sketch3.addConstraint(Sketcher.Constraint("Equal", 2, 3))
sketch3.addConstraint(Sketcher.Constraint("Equal", 3, 4))
sketch3.addConstraint(Sketcher.Constraint("Equal", 4, 5))
sketch3.addConstraint(Sketcher.Constraint("Equal", 5, 6))
sketch3.addConstraint(Sketcher.Constraint("Equal", 6, 7))
sketch3.addConstraint(Sketcher.Constraint("Equal", 7, 8))
sketch3.addConstraint(Sketcher.Constraint("Equal", 8, 9))
sketch3.addConstraint(Sketcher.Constraint("Equal", 9, 10))
sketch3.addConstraint(Sketcher.Constraint("Symmetric", 0, 3, 6, 3, -1, 1))
sketch3.addConstraint(Sketcher.Constraint("Symmetric", 2, 3, 7, 3, -1, 1))
sketch3.addConstraint(Sketcher.Constraint("Symmetric", 5, 3, 8, 3, -1, 1))
sketch3.addConstraint(Sketcher.Constraint("Symmetric", 3, 3, 9, 3, -1, 1))
sketch3.addConstraint(Sketcher.Constraint("Symmetric", 4, 3, 10, 3, -1, 1))
sketch3.addConstraint(Sketcher.Constraint("Symmetric", 0, 3, 2, 3, -2))
sketch3.addConstraint(Sketcher.Constraint("Symmetric", 3, 3, 4, 3, -2))
sketch3.addConstraint(Sketcher.Constraint("PointOnObject", 1, 3, -2))
sketch3.addConstraint(Sketcher.Constraint("PointOnObject", 5, 3, -2))
sketch3.addConstraint(Sketcher.Constraint("Horizontal", 0, 3, 1, 3))
sketch3.addConstraint(Sketcher.Constraint("Horizontal", 4, 3, 5, 3))
sketch3.addConstraint(Sketcher.Constraint("Vertical", 0, 3, 3, 3))
sketch3.addConstraint(Sketcher.Constraint("Diameter", 0, Q("3.175 mm")))
sketch3.addConstraint(Sketcher.Constraint("DistanceX", 0, 3, -1, 1, Q("69 mm")))
sketch3.addConstraint(Sketcher.Constraint("DistanceY", 0, 3, -1, 1, Q("94 mm")))
sketch3.addConstraint(Sketcher.Constraint("DistanceY", -1, 1, 3, 3, Q("34 mm")))
pocket2 = body.newObject("PartDesign::Pocket", "Pocket001")
pocket2.Profile = sketch3
pocket2.Type = "ThroughAll"
pocket2.Reversed = True

doc.recompute()
